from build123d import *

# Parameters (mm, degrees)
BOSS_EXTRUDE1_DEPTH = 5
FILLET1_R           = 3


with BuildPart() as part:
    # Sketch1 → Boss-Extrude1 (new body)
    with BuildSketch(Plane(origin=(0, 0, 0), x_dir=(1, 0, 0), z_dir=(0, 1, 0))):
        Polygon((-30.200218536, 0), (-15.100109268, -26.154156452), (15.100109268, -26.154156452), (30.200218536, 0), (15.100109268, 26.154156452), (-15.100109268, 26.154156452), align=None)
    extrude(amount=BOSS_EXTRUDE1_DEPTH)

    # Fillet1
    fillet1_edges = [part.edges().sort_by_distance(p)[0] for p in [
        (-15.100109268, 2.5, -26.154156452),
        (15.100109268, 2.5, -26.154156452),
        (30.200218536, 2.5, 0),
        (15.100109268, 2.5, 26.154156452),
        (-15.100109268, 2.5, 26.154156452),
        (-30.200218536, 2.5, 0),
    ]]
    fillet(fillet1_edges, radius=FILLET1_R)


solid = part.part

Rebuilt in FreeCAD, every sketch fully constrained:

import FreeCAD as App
import Part
import Sketcher
Q = App.Units.Quantity


def edges_at(feature, points):
    """Names of the edges that pass closest to the given points."""
    edges = feature.Shape.Edges
    near = lambda p: min(range(len(edges)), key=lambda i: edges[i].distToShape(Part.Vertex(*p))[0])
    return sorted({f"Edge{near(p) + 1}" for p in points})


def add_polygon(sketch, points):
    """Adds a closed chain of lines whose ends are joined by coincident constraints."""
    first, n = sketch.GeometryCount, len(points)
    for a, b in zip(points, points[1:] + points[:1]):
        sketch.addGeometry(Part.LineSegment(App.Vector(*a, 0), App.Vector(*b, 0)), False)
    for i in range(n):
        sketch.addConstraint(Sketcher.Constraint("Coincident", first + i, 2, first + (i + 1) % n, 1))

doc = App.newDocument("Part")
body = doc.addObject("PartDesign::Body", "Body")

sketch1 = body.newObject("Sketcher::SketchObject", "Sketch")
sketch1.AttachmentSupport = (doc.getObject("XZ_Plane"), [""])
sketch1.MapMode = "FlatFace"
add_polygon(sketch1, [(-30.200219, 0), (-15.100109, 26.154156), (15.100109, 26.154156), (30.200219, 0), (15.100109, -26.154156), (-15.100109, -26.154156)])
sketch1.addConstraint([
    Sketcher.Constraint("Horizontal", 1),
    Sketcher.Constraint("Horizontal", 4),
    Sketcher.Constraint("Symmetric", 0, 2, 3, 2, -1, 1),
    Sketcher.Constraint("Symmetric", 2, 2, 5, 2, -1, 1),
    Sketcher.Constraint("PointOnObject", 2, 2, -1),
    Sketcher.Constraint("Parallel", 2, 5),
    Sketcher.Constraint("Vertical", 1, 2, 3, 2),
    Sketcher.Constraint("Angle", 0, Q("60 deg")),
    Sketcher.Constraint("DistanceX", 1, 1, 1, 2, 30.200219),
    Sketcher.Constraint("Distance", 0, 30.200219),
])
pad1 = body.newObject("PartDesign::Pad", "Pad")
pad1.Profile = sketch1
pad1.Length = 5
pad1.Reversed = True
doc.recompute()

fillet = body.newObject("PartDesign::Fillet", "Fillet")
fillet.Base = (pad1, edges_at(pad1, [
    (-15.1, 2.5, -26.154),
    (15.1, 2.5, -26.154),
    (30.2, 2.5, 0),
    (15.1, 2.5, 26.154),
    (-15.1, 2.5, 26.154),
    (-30.2, 2.5, 0),
]))
fillet.Radius = 3

doc.recompute()
